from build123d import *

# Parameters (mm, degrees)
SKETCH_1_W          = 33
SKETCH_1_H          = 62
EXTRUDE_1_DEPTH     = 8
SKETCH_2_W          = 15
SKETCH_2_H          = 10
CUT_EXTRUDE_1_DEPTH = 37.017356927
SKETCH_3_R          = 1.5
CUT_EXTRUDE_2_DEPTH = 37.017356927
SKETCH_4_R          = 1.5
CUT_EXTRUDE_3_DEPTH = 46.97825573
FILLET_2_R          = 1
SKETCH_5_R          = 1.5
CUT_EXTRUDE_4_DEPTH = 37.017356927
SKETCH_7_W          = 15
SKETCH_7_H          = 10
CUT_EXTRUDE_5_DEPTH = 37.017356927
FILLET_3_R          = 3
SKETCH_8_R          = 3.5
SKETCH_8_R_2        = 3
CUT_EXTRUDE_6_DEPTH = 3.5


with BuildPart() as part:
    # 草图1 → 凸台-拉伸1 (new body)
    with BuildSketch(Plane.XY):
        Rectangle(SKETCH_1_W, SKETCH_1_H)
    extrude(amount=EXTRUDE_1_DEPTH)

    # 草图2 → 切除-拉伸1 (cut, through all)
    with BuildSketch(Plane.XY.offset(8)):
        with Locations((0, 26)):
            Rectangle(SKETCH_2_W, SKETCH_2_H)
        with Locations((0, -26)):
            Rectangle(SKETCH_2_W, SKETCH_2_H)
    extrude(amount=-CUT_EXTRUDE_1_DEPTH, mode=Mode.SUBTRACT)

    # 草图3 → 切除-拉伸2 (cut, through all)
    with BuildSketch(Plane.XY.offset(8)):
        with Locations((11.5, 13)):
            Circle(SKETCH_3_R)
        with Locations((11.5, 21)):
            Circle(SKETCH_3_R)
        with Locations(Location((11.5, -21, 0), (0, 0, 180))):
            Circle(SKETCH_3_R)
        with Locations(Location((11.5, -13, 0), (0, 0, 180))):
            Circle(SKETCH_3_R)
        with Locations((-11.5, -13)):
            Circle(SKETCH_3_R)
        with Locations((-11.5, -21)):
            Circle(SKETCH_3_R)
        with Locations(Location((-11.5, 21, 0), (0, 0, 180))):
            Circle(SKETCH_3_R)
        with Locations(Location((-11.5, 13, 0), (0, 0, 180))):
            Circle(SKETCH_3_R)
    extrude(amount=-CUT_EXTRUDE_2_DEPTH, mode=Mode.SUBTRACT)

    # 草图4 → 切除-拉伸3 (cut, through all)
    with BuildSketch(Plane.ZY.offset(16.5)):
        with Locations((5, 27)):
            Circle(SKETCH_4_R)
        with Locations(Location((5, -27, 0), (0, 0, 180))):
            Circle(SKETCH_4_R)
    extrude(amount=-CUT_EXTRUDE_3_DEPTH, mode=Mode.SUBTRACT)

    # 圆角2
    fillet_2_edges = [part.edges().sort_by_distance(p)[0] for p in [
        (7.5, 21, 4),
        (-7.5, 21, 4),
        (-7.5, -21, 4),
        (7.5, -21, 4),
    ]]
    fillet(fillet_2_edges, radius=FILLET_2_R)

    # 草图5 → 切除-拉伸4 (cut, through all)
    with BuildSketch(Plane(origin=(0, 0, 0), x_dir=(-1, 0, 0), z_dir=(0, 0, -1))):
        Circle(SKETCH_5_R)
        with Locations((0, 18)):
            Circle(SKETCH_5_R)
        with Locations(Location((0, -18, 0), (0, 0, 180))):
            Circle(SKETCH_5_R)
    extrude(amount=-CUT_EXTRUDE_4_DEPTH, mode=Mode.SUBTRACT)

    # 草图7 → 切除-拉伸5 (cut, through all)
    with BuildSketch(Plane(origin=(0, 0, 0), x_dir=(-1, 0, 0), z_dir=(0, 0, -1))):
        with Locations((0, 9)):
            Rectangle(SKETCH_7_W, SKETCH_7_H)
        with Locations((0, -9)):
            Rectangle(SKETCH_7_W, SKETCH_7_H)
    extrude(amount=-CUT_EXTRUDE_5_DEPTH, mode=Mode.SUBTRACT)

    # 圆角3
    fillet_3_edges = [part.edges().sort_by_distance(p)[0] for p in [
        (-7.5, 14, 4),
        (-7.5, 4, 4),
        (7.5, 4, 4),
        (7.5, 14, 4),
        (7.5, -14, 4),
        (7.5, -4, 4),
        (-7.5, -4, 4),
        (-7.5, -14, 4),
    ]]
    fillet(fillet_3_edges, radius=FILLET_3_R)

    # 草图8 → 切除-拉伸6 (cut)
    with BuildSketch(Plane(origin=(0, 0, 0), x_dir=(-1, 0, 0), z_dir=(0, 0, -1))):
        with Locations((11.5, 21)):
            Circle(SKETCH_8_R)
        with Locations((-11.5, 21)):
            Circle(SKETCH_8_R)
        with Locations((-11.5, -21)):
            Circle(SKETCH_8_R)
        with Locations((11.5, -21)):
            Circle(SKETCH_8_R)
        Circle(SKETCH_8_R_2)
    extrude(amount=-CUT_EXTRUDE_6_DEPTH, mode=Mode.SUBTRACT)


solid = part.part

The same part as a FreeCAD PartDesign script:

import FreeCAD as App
import Part
import Sketcher
from FreeCAD import Vector


def edges_at(feature, points):
    """Names of the edges that pass closest to the given points."""
    edges = feature.Shape.Edges
    near = lambda p: min(range(len(edges)), key=lambda i: edges[i].distToShape(Part.Vertex(*p))[0])
    return sorted({f"Edge{near(p) + 1}" for p in points})


def add_polygon(sketch, points):
    """Adds a closed chain of lines whose ends are joined by coincident constraints."""
    first, n = sketch.GeometryCount, len(points)
    for a, b in zip(points, points[1:] + points[:1]):
        sketch.addGeometry(Part.LineSegment(App.Vector(*a, 0), App.Vector(*b, 0)), False)
    for i in range(n):
        sketch.addConstraint(Sketcher.Constraint("Coincident", first + i, 2, first + (i + 1) % n, 1))

doc = App.newDocument("Part")
params = doc.addObject("Spreadsheet::Sheet", "Params")
for row, (alias, value) in enumerate([
    ("sketch1_width", "33 mm"),
    ("sketch1_height", "62 mm"),
    ("pad1_length", "8 mm"),
    ("sketch2_width", "15 mm"),
    ("sketch2_height", "10 mm"),
    ("sketch3_diameter", "3 mm"),
    ("sketch4_diameter", "3 mm"),
    ("fillet_radius", "1 mm"),
    ("sketch5_diameter", "3 mm"),
    ("sketch6_width", "15 mm"),
    ("sketch6_height", "10 mm"),
    ("fillet2_radius", "3 mm"),
    ("sketch7_diameter", "7 mm"),
    ("sketch7_diameter2", "6 mm"),
    ("pocket6_length", "3.5 mm"),
], start=1):
    params.set(f"A{row}", alias)
    params.set(f"B{row}", "=" + value)
    params.setAlias(f"B{row}", alias)

body = doc.addObject("PartDesign::Body", "Body")

# Sketch on XY plane
sketch1 = doc.addObject("Sketcher::SketchObject", "Sketch")
body.addObject(sketch1)
sketch1.AttachmentSupport = (doc.XY_Plane, [""])
sketch1.MapMode = "FlatFace"
add_polygon(sketch1, [(-16, 31), (-16, -31), (16, -31), (16, 31)])  # lines 0-3
sketch1.addConstraint([
    Sketcher.Constraint("Vertical", 0),
    Sketcher.Constraint("Horizontal", 1),
    Sketcher.Constraint("Vertical", 2),
    Sketcher.Constraint("Horizontal", 3),
    Sketcher.Constraint("Symmetric", 0, 2, 2, 2, -1, 1),
    Sketcher.Constraint("DistanceX", 1, 1, 1, 2, 33.0),
    Sketcher.Constraint("DistanceY", 0, 2, 0, 1, 62.0),
])
sketch1.setExpression("Constraints[9]", "Params.sketch1_width")
sketch1.setExpression("Constraints[10]", "Params.sketch1_height")
pad1 = doc.addObject("PartDesign::Pad", "Pad")
body.addObject(pad1)
pad1.Profile = sketch1
pad1.setExpression("Length", "Params.pad1_length")

# Sketch on XY plane
sketch2 = doc.addObject("Sketcher::SketchObject", "Sketch001")
body.addObject(sketch2)
sketch2.AttachmentSupport = (doc.XY_Plane, [""])
sketch2.MapMode = "FlatFace"
sketch2.AttachmentOffset = App.Placement(Vector(0, 0, 8), App.Rotation())
add_polygon(sketch2, [(-8, 31), (-8, 21), (8, 21), (8, 31)])  # lines 0-3
add_polygon(sketch2, [(-8, -21), (-8, -31), (8, -31), (8, -21)])  # lines 4-7
sketch2.addConstraint([
    Sketcher.Constraint("Vertical", 0),
    Sketcher.Constraint("Horizontal", 1),
    Sketcher.Constraint("Vertical", 2),
    Sketcher.Constraint("Horizontal", 3),
    Sketcher.Constraint("Vertical", 4),
    Sketcher.Constraint("Horizontal", 5),
    Sketcher.Constraint("Vertical", 6),
    Sketcher.Constraint("Horizontal", 7),
    Sketcher.Constraint("Symmetric", 2, 2, 4, 2, -1, 1),
    Sketcher.Constraint("Symmetric", 0, 2, 6, 2, -1, 1),
    Sketcher.Constraint("Vertical", 3, 2, 4, 2),
    Sketcher.Constraint("DistanceX", 1, 1, 1, 2, 15.0),
    Sketcher.Constraint("DistanceY", 0, 2, 0, 1, 10.0),
    Sketcher.Constraint("DistanceY", -1, 1, 0, 2, 21.0),
])
sketch2.setExpression("Constraints[19]", "Params.sketch2_width")
sketch2.setExpression("Constraints[20]", "Params.sketch2_height")
pocket1 = doc.addObject("PartDesign::Pocket", "Pocket")
body.addObject(pocket1)
pocket1.Profile = sketch2
pocket1.Type = "ThroughAll"

# Sketch on XY plane
sketch3 = doc.addObject("Sketcher::SketchObject", "Sketch002")
body.addObject(sketch3)
sketch3.AttachmentSupport = (doc.XY_Plane, [""])
sketch3.MapMode = "FlatFace"
sketch3.AttachmentOffset = App.Placement(Vector(0, 0, 8), App.Rotation())
sketch3.addGeometry([
    Part.Circle(Vector(11.5, 13, 0), Vector(0, 0, 1), 1.5),  # 0
    Part.Circle(Vector(11.5, 21, 0), Vector(0, 0, 1), 1.5),  # 1
    Part.Circle(Vector(11.5, -21, 0), Vector(0, 0, 1), 1.5),  # 2
    Part.Circle(Vector(11.5, -13, 0), Vector(0, 0, 1), 1.5),  # 3
    Part.Circle(Vector(-11.5, -13, 0), Vector(0, 0, 1), 1.5),  # 4
    Part.Circle(Vector(-11.5, -21, 0), Vector(0, 0, 1), 1.5),  # 5
    Part.Circle(Vector(-11.5, 21, 0), Vector(0, 0, 1), 1.5),  # 6
    Part.Circle(Vector(-11.5, 13, 0), Vector(0, 0, 1), 1.5),  # 7
], False)
sketch3.addConstraint([
    Sketcher.Constraint("Equal", 0, 1),
    Sketcher.Constraint("Equal", 1, 2),
    Sketcher.Constraint("Equal", 2, 3),
    Sketcher.Constraint("Equal", 3, 4),
    Sketcher.Constraint("Equal", 4, 5),
    Sketcher.Constraint("Equal", 5, 6),
    Sketcher.Constraint("Equal", 6, 7),
    Sketcher.Constraint("Symmetric", 0, 3, 4, 3, -1, 1),
    Sketcher.Constraint("Symmetric", 1, 3, 5, 3, -1, 1),
    Sketcher.Constraint("Symmetric", 2, 3, 6, 3, -1, 1),
    Sketcher.Constraint("Symmetric", 3, 3, 7, 3, -1, 1),
    Sketcher.Constraint("Symmetric", 3, 3, 4, 3, -2),
    Sketcher.Constraint("Symmetric", 2, 3, 5, 3, -2),
    Sketcher.Constraint("Vertical", 0, 3, 1, 3),
    Sketcher.Constraint("Diameter", 0, 3.0),
    Sketcher.Constraint("DistanceY", -1, 1, 0, 3, 13.0),
    Sketcher.Constraint("DistanceY", -1, 1, 1, 3, 21.0),
    Sketcher.Constraint("DistanceX", 4, 3, 3, 3, 23.0),
])
sketch3.setExpression("Constraints[14]", "Params.sketch3_diameter")
pocket2 = doc.addObject("PartDesign::Pocket", "Pocket001")
body.addObject(pocket2)
pocket2.Profile = sketch3
pocket2.Type = "ThroughAll"

# Sketch on YZ plane
sketch4 = doc.addObject("Sketcher::SketchObject", "Sketch003")
body.addObject(sketch4)
sketch4.AttachmentSupport = (doc.YZ_Plane, [""])
sketch4.MapMode = "FlatFace"
sketch4.AttachmentOffset = App.Placement(Vector(0, 0, -16.5), App.Rotation())
sketch4.addGeometry([
    Part.Circle(Vector(27, 5, 0), Vector(0, 0, 1), 1.5),
    Part.Circle(Vector(-27, 5, 0), Vector(0, 0, 1), 1.5),
], False)
sketch4.addConstraint([
    Sketcher.Constraint("Equal", 0, 1),
    Sketcher.Constraint("Symmetric", 0, 3, 1, 3, -2),
    Sketcher.Constraint("Diameter", 0, 3.0),
    Sketcher.Constraint("DistanceX", -1, 1, 0, 3, 27.0),
    Sketcher.Constraint("DistanceY", -1, 1, 0, 3, 5.0),
])
sketch4.setExpression("Constraints[2]", "Params.sketch4_diameter")
pocket3 = doc.addObject("PartDesign::Pocket", "Pocket002")
body.addObject(pocket3)
pocket3.Profile = sketch4
pocket3.Type = "ThroughAll"
pocket3.Reversed = True
doc.recompute()

fillet = doc.addObject("PartDesign::Fillet", "Fillet")
body.addObject(fillet)
fillet.Base = (pocket3, edges_at(pocket3, [
    (7.5, 21, 4),
    (-7.5, 21, 4),
    (-7.5, -21, 4),
    (7.5, -21, 4),
]))
fillet.setExpression("Radius", "Params.fillet_radius")

# Sketch on XY plane
sketch5 = doc.addObject("Sketcher::SketchObject", "Sketch004")
body.addObject(sketch5)
sketch5.AttachmentSupport = (doc.XY_Plane, [""])
sketch5.MapMode = "FlatFace"
sketch5.addGeometry([
    Part.Circle(Vector(0, 0, 0), Vector(0, 0, 1), 1.5),
    Part.Circle(Vector(0, 18, 0), Vector(0, 0, 1), 1.5),
    Part.Circle(Vector(0, -18, 0), Vector(0, 0, 1), 1.5),
], False)
sketch5.addConstraint([
    Sketcher.Constraint("Coincident", 0, 3, -1, 1),
    Sketcher.Constraint("Equal", 0, 1),
    Sketcher.Constraint("Equal", 1, 2),
    Sketcher.Constraint("Symmetric", 1, 3, 2, 3, -1, 1),
    Sketcher.Constraint("PointOnObject", 1, 3, -2),
    Sketcher.Constraint("Diameter", 0, 3.0),
    Sketcher.Constraint("DistanceY", -1, 1, 1, 3, 18.0),
])
sketch5.setExpression("Constraints[5]", "Params.sketch5_diameter")
pocket4 = doc.addObject("PartDesign::Pocket", "Pocket003")
body.addObject(pocket4)
pocket4.Profile = sketch5
pocket4.Type = "ThroughAll"
pocket4.Reversed = True

# Sketch on XY plane
sketch6 = doc.addObject("Sketcher::SketchObject", "Sketch005")
body.addObject(sketch6)
sketch6.AttachmentSupport = (doc.XY_Plane, [""])
sketch6.MapMode = "FlatFace"
add_polygon(sketch6, [(8, 14), (8, 4), (-8, 4), (-8, 14)])  # lines 0-3
add_polygon(sketch6, [(8, -4), (8, -14), (-8, -14), (-8, -4)])  # lines 4-7
sketch6.addConstraint([
    Sketcher.Constraint("Vertical", 0),
    Sketcher.Constraint("Horizontal", 1),
    Sketcher.Constraint("Vertical", 2),
    Sketcher.Constraint("Horizontal", 3),
    Sketcher.Constraint("Vertical", 4),
    Sketcher.Constraint("Horizontal", 5),
    Sketcher.Constraint("Vertical", 6),
    Sketcher.Constraint("Horizontal", 7),
    Sketcher.Constraint("Symmetric", 2, 2, 4, 2, -1, 1),
    Sketcher.Constraint("Symmetric", 0, 2, 6, 2, -1, 1),
    Sketcher.Constraint("Vertical", 3, 2, 4, 2),
    Sketcher.Constraint("DistanceX", 1, 2, 1, 1, 15.0),
    Sketcher.Constraint("DistanceY", 0, 2, 0, 1, 10.0),
    Sketcher.Constraint("DistanceY", -1, 1, 0, 2, 4.0),
])
sketch6.setExpression("Constraints[19]", "Params.sketch6_width")
sketch6.setExpression("Constraints[20]", "Params.sketch6_height")
pocket5 = doc.addObject("PartDesign::Pocket", "Pocket004")
body.addObject(pocket5)
pocket5.Profile = sketch6
pocket5.Type = "ThroughAll"
pocket5.Reversed = True
doc.recompute()

fillet2 = doc.addObject("PartDesign::Fillet", "Fillet001")
body.addObject(fillet2)
fillet2.Base = (pocket5, edges_at(pocket5, [
    (-7.5, 14, 4),
    (-7.5, 4, 4),
    (7.5, 4, 4),
    (7.5, 14, 4),
    (7.5, -14, 4),
    (7.5, -4, 4),
    (-7.5, -4, 4),
    (-7.5, -14, 4),
]))
fillet2.setExpression("Radius", "Params.fillet2_radius")

# Sketch on XY plane
sketch7 = doc.addObject("Sketcher::SketchObject", "Sketch006")
body.addObject(sketch7)
sketch7.AttachmentSupport = (doc.XY_Plane, [""])
sketch7.MapMode = "FlatFace"
sketch7.addGeometry([
    Part.Circle(Vector(-11.5, 21, 0), Vector(0, 0, 1), 3.5),  # 0
    Part.Circle(Vector(11.5, 21, 0), Vector(0, 0, 1), 3.5),  # 1
    Part.Circle(Vector(11.5, -21, 0), Vector(0, 0, 1), 3.5),  # 2
    Part.Circle(Vector(-11.5, -21, 0), Vector(0, 0, 1), 3.5),  # 3
    Part.Circle(Vector(0, 0, 0), Vector(0, 0, 1), 3),  # 4
], False)
sketch7.addConstraint([
    Sketcher.Constraint("Coincident", 4, 3, -1, 1),
    Sketcher.Constraint("Equal", 0, 1),
    Sketcher.Constraint("Equal", 1, 2),
    Sketcher.Constraint("Equal", 2, 3),
    Sketcher.Constraint("Symmetric", 0, 3, 2, 3, -1, 1),
    Sketcher.Constraint("Symmetric", 1, 3, 3, 3, -1, 1),
    Sketcher.Constraint("Symmetric", 0, 3, 1, 3, -2),
    Sketcher.Constraint("Diameter", 0, 7.0),
    Sketcher.Constraint("Diameter", 4, 6.0),
    Sketcher.Constraint("DistanceY", -1, 1, 0, 3, 21.0),
    Sketcher.Constraint("DistanceX", 0, 3, 1, 3, 23.0),
])
sketch7.setExpression("Constraints[7]", "Params.sketch7_diameter")
sketch7.setExpression("Constraints[8]", "Params.sketch7_diameter2")
pocket6 = doc.addObject("PartDesign::Pocket", "Pocket005")
body.addObject(pocket6)
pocket6.Profile = sketch7
pocket6.setExpression("Length", "Params.pocket6_length")
pocket6.Reversed = True

doc.recompute()
